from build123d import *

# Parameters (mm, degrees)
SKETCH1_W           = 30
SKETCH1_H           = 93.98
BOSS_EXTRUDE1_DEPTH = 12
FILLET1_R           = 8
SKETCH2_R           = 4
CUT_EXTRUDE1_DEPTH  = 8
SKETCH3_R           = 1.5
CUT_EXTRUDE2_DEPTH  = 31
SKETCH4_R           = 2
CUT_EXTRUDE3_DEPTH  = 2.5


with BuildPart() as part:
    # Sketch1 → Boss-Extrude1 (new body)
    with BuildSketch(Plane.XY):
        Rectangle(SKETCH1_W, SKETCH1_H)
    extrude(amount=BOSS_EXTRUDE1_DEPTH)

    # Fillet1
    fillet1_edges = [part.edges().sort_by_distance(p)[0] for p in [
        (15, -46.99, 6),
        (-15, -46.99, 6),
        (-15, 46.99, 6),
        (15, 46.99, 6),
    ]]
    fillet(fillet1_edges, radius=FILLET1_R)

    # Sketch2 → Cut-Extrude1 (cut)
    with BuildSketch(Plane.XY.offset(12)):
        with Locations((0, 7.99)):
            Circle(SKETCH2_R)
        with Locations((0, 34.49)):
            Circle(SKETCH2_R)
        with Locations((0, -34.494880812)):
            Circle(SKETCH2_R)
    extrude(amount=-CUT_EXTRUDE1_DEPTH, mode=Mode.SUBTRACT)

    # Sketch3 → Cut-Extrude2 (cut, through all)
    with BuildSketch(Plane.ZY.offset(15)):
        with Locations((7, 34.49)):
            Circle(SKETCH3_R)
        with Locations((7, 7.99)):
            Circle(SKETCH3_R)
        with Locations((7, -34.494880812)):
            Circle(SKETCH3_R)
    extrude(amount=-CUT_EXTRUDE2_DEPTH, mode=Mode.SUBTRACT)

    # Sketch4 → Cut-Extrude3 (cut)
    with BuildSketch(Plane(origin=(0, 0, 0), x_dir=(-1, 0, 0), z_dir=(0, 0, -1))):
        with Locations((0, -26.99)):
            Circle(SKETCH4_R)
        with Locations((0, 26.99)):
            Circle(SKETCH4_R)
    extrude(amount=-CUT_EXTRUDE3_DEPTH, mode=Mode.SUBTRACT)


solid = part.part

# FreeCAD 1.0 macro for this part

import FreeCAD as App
import Part
import Sketcher

V = App.Vector


def edges_at(feature, points):
    """Names of the edges that pass closest to the given points."""
    edges = feature.Shape.Edges
    near = lambda p: min(range(len(edges)), key=lambda i: edges[i].distToShape(Part.Vertex(*p))[0])
    return sorted({f"Edge{near(p) + 1}" for p in points})

doc = App.newDocument("Part")
body = doc.addObject("PartDesign::Body", "Body")

# Sketch on XY plane
sketch1 = body.newObject("Sketcher::SketchObject", "Sketch")
sketch1.AttachmentSupport = (doc.getObject("XY_Plane"), [""])
sketch1.MapMode = "FlatFace"
sketch1.addGeometry(Part.LineSegment(V(-15, 47, 0), V(-15, -47, 0)), False)
sketch1.addGeometry(Part.LineSegment(V(-15, -47, 0), V(15, -47, 0)), False)
sketch1.addGeometry(Part.LineSegment(V(15, -47, 0), V(15, 47, 0)), False)
sketch1.addGeometry(Part.LineSegment(V(15, 47, 0), V(-15, 47, 0)), False)
sketch1.addConstraint(Sketcher.Constraint("Coincident", 0, 2, 1, 1))
sketch1.addConstraint(Sketcher.Constraint("Coincident", 1, 2, 2, 1))
sketch1.addConstraint(Sketcher.Constraint("Coincident", 2, 2, 3, 1))
sketch1.addConstraint(Sketcher.Constraint("Coincident", 3, 2, 0, 1))
sketch1.addConstraint(Sketcher.Constraint("Vertical", 0))
sketch1.addConstraint(Sketcher.Constraint("Horizontal", 1))
sketch1.addConstraint(Sketcher.Constraint("Vertical", 2))
sketch1.addConstraint(Sketcher.Constraint("Horizontal", 3))
sketch1.addConstraint(Sketcher.Constraint("Symmetric", 0, 2, 2, 2, -1, 1))
sketch1.addConstraint(Sketcher.Constraint("DistanceX", 1, 1, 1, 2, 30.0))
sketch1.addConstraint(Sketcher.Constraint("DistanceY", 0, 2, 0, 1, 93.98))
pad1 = body.newObject("PartDesign::Pad", "Pad")
pad1.Profile = sketch1
pad1.Length = 12
doc.recompute()

fillet = body.newObject("PartDesign::Fillet", "Fillet")
fillet.Base = (pad1, edges_at(pad1, [
    (15, -46.99, 6),
    (-15, -46.99, 6),
    (-15, 46.99, 6),
    (15, 46.99, 6),
]))
fillet.Radius = 8

# Sketch on XY plane
sketch2 = body.newObject("Sketcher::SketchObject", "Sketch001")
sketch2.AttachmentSupport = (doc.getObject("XY_Plane"), [""])
sketch2.MapMode = "FlatFace"
sketch2.AttachmentOffset = App.Placement(V(0, 0, 12), App.Rotation())
sketch2.addGeometry(Part.Circle(V(0, 8, 0), V(0, 0, 1), 4), False)
sketch2.addGeometry(Part.Circle(V(0, 34.5, 0), V(0, 0, 1), 4), False)
sketch2.addGeometry(Part.Circle(V(0, -34.5, 0), V(0, 0, 1), 4), False)
sketch2.addConstraint(Sketcher.Constraint("Equal", 0, 1))
sketch2.addConstraint(Sketcher.Constraint("Equal", 1, 2))
sketch2.addConstraint(Sketcher.Constraint("PointOnObject", 0, 3, -2))
sketch2.addConstraint(Sketcher.Constraint("PointOnObject", 1, 3, -2))
sketch2.addConstraint(Sketcher.Constraint("PointOnObject", 2, 3, -2))
sketch2.addConstraint(Sketcher.Constraint("Diameter", 0, 8.0))
sketch2.addConstraint(Sketcher.Constraint("DistanceY", 0, 3, 1, 3, 26.5))
sketch2.addConstraint(Sketcher.Constraint("DistanceY", -1, 1, 0, 3, 7.99))
sketch2.addConstraint(Sketcher.Constraint("DistanceY", 2, 3, -1, 1, 34.494881))
pocket1 = body.newObject("PartDesign::Pocket", "Pocket")
pocket1.Profile = sketch2
pocket1.Length = 8

# Sketch on YZ plane
sketch3 = body.newObject("Sketcher::SketchObject", "Sketch002")
sketch3.AttachmentSupport = (doc.getObject("YZ_Plane"), [""])
sketch3.MapMode = "FlatFace"
sketch3.AttachmentOffset = App.Placement(V(0, 0, -15), App.Rotation())
sketch3.addGeometry(Part.Circle(V(34.5, 7, 0), V(0, 0, 1), 1.5), False)
sketch3.addGeometry(Part.Circle(V(8, 7, 0), V(0, 0, 1), 1.5), False)
sketch3.addGeometry(Part.Circle(V(-34.5, 7, 0), V(0, 0, 1), 1.5), False)
sketch3.addConstraint(Sketcher.Constraint("Equal", 0, 1))
sketch3.addConstraint(Sketcher.Constraint("Equal", 1, 2))
sketch3.addConstraint(Sketcher.Constraint("Horizontal", 0, 3, 1, 3))
sketch3.addConstraint(Sketcher.Constraint("Horizontal", 1, 3, 2, 3))
sketch3.addConstraint(Sketcher.Constraint("Diameter", 0, 3.0))
sketch3.addConstraint(Sketcher.Constraint("DistanceY", -1, 1, 0, 3, 7.0))
sketch3.addConstraint(Sketcher.Constraint("DistanceX", 1, 3, 0, 3, 26.5))
sketch3.addConstraint(Sketcher.Constraint("DistanceX", -1, 1, 0, 3, 34.49))
sketch3.addConstraint(Sketcher.Constraint("DistanceX", 2, 3, -1, 1, 34.494881))
pocket2 = body.newObject("PartDesign::Pocket", "Pocket001")
pocket2.Profile = sketch3
pocket2.Type = "ThroughAll"
pocket2.Reversed = True

# Sketch on XY plane
sketch4 = body.newObject("Sketcher::SketchObject", "Sketch003")
sketch4.AttachmentSupport = (doc.getObject("XY_Plane"), [""])
sketch4.MapMode = "FlatFace"
sketch4.addGeometry(Part.Circle(V(0, -27, 0), V(0, 0, 1), 2), False)
sketch4.addGeometry(Part.Circle(V(0, 27, 0), V(0, 0, 1), 2), False)
sketch4.addConstraint(Sketcher.Constraint("Equal", 0, 1))
sketch4.addConstraint(Sketcher.Constraint("Symmetric", 0, 3, 1, 3, -1, 1))
sketch4.addConstraint(Sketcher.Constraint("PointOnObject", 0, 3, -2))
sketch4.addConstraint(Sketcher.Constraint("Diameter", 0, 4.0))
sketch4.addConstraint(Sketcher.Constraint("DistanceY", 0, 3, -1, 1, 26.99))
pocket3 = body.newObject("PartDesign::Pocket", "Pocket002")
pocket3.Profile = sketch4
pocket3.Length = 2.5
pocket3.Reversed = True

doc.recompute()
